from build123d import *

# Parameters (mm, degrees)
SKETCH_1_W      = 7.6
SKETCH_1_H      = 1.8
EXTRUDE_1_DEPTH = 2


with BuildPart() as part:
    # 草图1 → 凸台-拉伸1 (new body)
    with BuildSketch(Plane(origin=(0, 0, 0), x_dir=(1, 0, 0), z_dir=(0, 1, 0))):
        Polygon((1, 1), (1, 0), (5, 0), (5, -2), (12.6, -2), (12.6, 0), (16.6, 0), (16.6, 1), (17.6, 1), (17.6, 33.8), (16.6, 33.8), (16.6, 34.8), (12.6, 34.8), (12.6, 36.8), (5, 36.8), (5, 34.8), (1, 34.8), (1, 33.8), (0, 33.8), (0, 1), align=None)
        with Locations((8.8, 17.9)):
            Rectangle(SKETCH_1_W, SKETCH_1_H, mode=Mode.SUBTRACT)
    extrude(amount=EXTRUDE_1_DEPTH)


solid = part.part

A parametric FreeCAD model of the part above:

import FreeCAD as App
import Part
import Sketcher
from FreeCAD import Vector
Q = App.Units.Quantity


def add_polygon(sketch, points):
    """Adds a closed chain of lines whose ends are joined by coincident constraints."""
    first, n = sketch.GeometryCount, len(points)
    for a, b in zip(points, points[1:] + points[:1]):
        sketch.addGeometry(Part.LineSegment(App.Vector(*a, 0), App.Vector(*b, 0)), False)
    for i in range(n):
        sketch.addConstraint(Sketcher.Constraint("Coincident", first + i, 2, first + (i + 1) % n, 1))

doc = App.newDocument("Part")
params = doc.addObject("Spreadsheet::Sheet", "Params")
for row, (alias, value) in enumerate([
    ("sketch1_width", "4 mm"),
    ("sketch1_width2", "1 mm"),
    ("sketch1_height", "2 mm"),
    ("sketch1_width3", "7.6 mm"),
    ("sketch1_height2", "32.8 mm"),
    ("pad1_length", "2 mm"),
], start=1):
    params.set(f"A{row}", alias)
    params.set(f"B{row}", "=" + value)
    params.setAlias(f"B{row}", alias)

body = doc.addObject("PartDesign::Body", "Body")

# Sketch on XZ plane
sketch1 = body.newObject("Sketcher::SketchObject", "Sketch")
sketch1.AttachmentSupport = (doc.getObject("XZ_Plane"), [""])
sketch1.MapMode = "FlatFace"
add_polygon(sketch1, [(1, -1), (1, 0), (5, 0), (5, 2), (12.6, 2), (12.6, 0), (16.6, 0), (16.6, -1), (17.6, -1), (17.6, -33.8), (16.6, -33.8), (16.6, -34.8), (12.6, -34.8), (12.6, -36.8), (5, -36.8), (5, -34.8), (1, -34.8), (1, -33.8), (0, -33.8), (0, -1)])  # lines 0-19
add_polygon(sketch1, [(12.6, -17), (5, -17), (5, -18.8), (12.6, -18.8)])  # lines 20-23
sketch1.addConstraint(Sketcher.Constraint("Vertical", 0))
sketch1.addConstraint(Sketcher.Constraint("Horizontal", 1))
sketch1.addConstraint(Sketcher.Constraint("Vertical", 2))
sketch1.addConstraint(Sketcher.Constraint("Horizontal", 3))
sketch1.addConstraint(Sketcher.Constraint("Vertical", 4))
sketch1.addConstraint(Sketcher.Constraint("Horizontal", 5))
sketch1.addConstraint(Sketcher.Constraint("Vertical", 6))
sketch1.addConstraint(Sketcher.Constraint("Horizontal", 7))
sketch1.addConstraint(Sketcher.Constraint("Vertical", 8))
sketch1.addConstraint(Sketcher.Constraint("Horizontal", 9))
sketch1.addConstraint(Sketcher.Constraint("Vertical", 10))
sketch1.addConstraint(Sketcher.Constraint("Horizontal", 11))
sketch1.addConstraint(Sketcher.Constraint("Vertical", 12))
sketch1.addConstraint(Sketcher.Constraint("Horizontal", 13))
sketch1.addConstraint(Sketcher.Constraint("Vertical", 14))
sketch1.addConstraint(Sketcher.Constraint("Horizontal", 15))
sketch1.addConstraint(Sketcher.Constraint("Vertical", 16))
sketch1.addConstraint(Sketcher.Constraint("Horizontal", 17))
sketch1.addConstraint(Sketcher.Constraint("Vertical", 18))
sketch1.addConstraint(Sketcher.Constraint("Horizontal", 19))
sketch1.addConstraint(Sketcher.Constraint("Horizontal", 20))
sketch1.addConstraint(Sketcher.Constraint("Vertical", 21))
sketch1.addConstraint(Sketcher.Constraint("Horizontal", 22))
sketch1.addConstraint(Sketcher.Constraint("Vertical", 23))
sketch1.addConstraint(Sketcher.Constraint("PointOnObject", 0, 2, -1))
sketch1.addConstraint(Sketcher.Constraint("PointOnObject", 4, 2, -1))
sketch1.addConstraint(Sketcher.Constraint("PointOnObject", 17, 2, -2))
sketch1.addConstraint(Sketcher.Constraint("Horizontal", 11, 2, 14, 2))
sketch1.addConstraint(Sketcher.Constraint("Horizontal", 9, 2, 16, 2))
sketch1.addConstraint(Sketcher.Constraint("Horizontal", 7, 2, 18, 2))
sketch1.addConstraint(Sketcher.Constraint("Vertical", 6, 2, 9, 2))
sketch1.addConstraint(Sketcher.Constraint("Vertical", 4, 2, 11, 2))
sketch1.addConstraint(Sketcher.Constraint("Vertical", 2, 2, 13, 2))
sketch1.addConstraint(Sketcher.Constraint("Vertical", 0, 2, 15, 2))
sketch1.addConstraint(Sketcher.Constraint("Vertical", 14, 2, 20, 2))
sketch1.addConstraint(Sketcher.Constraint("Vertical", 12, 2, 22, 2))
sketch1.addConstraint(Sketcher.Constraint("Equal", 1, 5))
sketch1.addConstraint(Sketcher.Constraint("Equal", 9, 17))
sketch1.addConstraint(Sketcher.Constraint("Equal", 19, 0))
sketch1.addConstraint(Sketcher.Constraint("Equal", 6, 10))
sketch1.addConstraint(Sketcher.Constraint("Equal", 4, 12))
sketch1.addConstraint(Sketcher.Constraint("DistanceX", 1, 1, 1, 2, Q("4 mm")))
sketch1.addConstraint(Sketcher.Constraint("DistanceX", 7, 1, 7, 2, Q("1 mm")))
sketch1.addConstraint(Sketcher.Constraint("DistanceY", 2, 1, 2, 2, Q("2 mm")))
sketch1.addConstraint(Sketcher.Constraint("DistanceX", 3, 1, 3, 2, Q("7.6 mm")))
sketch1.addConstraint(Sketcher.Constraint("DistanceY", 8, 2, 8, 1, Q("32.8 mm")))
sketch1.addConstraint(Sketcher.Constraint("DistanceY", 21, 2, 21, 1, Q("1.8 mm")))
sketch1.addConstraint(Sketcher.Constraint("DistanceY", 20, 2, -1, 1, Q("17 mm")))
sketch1.setExpression("Constraints[65]", "Params.sketch1_width")
sketch1.setExpression("Constraints[66]", "Params.sketch1_width2")
sketch1.setExpression("Constraints[67]", "Params.sketch1_height")
sketch1.setExpression("Constraints[68]", "Params.sketch1_width3")
sketch1.setExpression("Constraints[69]", "Params.sketch1_height2")
pad1 = body.newObject("PartDesign::Pad", "Pad")
pad1.Profile = sketch1
pad1.setExpression("Length", "Params.pad1_length")
pad1.Reversed = True

doc.recompute()
